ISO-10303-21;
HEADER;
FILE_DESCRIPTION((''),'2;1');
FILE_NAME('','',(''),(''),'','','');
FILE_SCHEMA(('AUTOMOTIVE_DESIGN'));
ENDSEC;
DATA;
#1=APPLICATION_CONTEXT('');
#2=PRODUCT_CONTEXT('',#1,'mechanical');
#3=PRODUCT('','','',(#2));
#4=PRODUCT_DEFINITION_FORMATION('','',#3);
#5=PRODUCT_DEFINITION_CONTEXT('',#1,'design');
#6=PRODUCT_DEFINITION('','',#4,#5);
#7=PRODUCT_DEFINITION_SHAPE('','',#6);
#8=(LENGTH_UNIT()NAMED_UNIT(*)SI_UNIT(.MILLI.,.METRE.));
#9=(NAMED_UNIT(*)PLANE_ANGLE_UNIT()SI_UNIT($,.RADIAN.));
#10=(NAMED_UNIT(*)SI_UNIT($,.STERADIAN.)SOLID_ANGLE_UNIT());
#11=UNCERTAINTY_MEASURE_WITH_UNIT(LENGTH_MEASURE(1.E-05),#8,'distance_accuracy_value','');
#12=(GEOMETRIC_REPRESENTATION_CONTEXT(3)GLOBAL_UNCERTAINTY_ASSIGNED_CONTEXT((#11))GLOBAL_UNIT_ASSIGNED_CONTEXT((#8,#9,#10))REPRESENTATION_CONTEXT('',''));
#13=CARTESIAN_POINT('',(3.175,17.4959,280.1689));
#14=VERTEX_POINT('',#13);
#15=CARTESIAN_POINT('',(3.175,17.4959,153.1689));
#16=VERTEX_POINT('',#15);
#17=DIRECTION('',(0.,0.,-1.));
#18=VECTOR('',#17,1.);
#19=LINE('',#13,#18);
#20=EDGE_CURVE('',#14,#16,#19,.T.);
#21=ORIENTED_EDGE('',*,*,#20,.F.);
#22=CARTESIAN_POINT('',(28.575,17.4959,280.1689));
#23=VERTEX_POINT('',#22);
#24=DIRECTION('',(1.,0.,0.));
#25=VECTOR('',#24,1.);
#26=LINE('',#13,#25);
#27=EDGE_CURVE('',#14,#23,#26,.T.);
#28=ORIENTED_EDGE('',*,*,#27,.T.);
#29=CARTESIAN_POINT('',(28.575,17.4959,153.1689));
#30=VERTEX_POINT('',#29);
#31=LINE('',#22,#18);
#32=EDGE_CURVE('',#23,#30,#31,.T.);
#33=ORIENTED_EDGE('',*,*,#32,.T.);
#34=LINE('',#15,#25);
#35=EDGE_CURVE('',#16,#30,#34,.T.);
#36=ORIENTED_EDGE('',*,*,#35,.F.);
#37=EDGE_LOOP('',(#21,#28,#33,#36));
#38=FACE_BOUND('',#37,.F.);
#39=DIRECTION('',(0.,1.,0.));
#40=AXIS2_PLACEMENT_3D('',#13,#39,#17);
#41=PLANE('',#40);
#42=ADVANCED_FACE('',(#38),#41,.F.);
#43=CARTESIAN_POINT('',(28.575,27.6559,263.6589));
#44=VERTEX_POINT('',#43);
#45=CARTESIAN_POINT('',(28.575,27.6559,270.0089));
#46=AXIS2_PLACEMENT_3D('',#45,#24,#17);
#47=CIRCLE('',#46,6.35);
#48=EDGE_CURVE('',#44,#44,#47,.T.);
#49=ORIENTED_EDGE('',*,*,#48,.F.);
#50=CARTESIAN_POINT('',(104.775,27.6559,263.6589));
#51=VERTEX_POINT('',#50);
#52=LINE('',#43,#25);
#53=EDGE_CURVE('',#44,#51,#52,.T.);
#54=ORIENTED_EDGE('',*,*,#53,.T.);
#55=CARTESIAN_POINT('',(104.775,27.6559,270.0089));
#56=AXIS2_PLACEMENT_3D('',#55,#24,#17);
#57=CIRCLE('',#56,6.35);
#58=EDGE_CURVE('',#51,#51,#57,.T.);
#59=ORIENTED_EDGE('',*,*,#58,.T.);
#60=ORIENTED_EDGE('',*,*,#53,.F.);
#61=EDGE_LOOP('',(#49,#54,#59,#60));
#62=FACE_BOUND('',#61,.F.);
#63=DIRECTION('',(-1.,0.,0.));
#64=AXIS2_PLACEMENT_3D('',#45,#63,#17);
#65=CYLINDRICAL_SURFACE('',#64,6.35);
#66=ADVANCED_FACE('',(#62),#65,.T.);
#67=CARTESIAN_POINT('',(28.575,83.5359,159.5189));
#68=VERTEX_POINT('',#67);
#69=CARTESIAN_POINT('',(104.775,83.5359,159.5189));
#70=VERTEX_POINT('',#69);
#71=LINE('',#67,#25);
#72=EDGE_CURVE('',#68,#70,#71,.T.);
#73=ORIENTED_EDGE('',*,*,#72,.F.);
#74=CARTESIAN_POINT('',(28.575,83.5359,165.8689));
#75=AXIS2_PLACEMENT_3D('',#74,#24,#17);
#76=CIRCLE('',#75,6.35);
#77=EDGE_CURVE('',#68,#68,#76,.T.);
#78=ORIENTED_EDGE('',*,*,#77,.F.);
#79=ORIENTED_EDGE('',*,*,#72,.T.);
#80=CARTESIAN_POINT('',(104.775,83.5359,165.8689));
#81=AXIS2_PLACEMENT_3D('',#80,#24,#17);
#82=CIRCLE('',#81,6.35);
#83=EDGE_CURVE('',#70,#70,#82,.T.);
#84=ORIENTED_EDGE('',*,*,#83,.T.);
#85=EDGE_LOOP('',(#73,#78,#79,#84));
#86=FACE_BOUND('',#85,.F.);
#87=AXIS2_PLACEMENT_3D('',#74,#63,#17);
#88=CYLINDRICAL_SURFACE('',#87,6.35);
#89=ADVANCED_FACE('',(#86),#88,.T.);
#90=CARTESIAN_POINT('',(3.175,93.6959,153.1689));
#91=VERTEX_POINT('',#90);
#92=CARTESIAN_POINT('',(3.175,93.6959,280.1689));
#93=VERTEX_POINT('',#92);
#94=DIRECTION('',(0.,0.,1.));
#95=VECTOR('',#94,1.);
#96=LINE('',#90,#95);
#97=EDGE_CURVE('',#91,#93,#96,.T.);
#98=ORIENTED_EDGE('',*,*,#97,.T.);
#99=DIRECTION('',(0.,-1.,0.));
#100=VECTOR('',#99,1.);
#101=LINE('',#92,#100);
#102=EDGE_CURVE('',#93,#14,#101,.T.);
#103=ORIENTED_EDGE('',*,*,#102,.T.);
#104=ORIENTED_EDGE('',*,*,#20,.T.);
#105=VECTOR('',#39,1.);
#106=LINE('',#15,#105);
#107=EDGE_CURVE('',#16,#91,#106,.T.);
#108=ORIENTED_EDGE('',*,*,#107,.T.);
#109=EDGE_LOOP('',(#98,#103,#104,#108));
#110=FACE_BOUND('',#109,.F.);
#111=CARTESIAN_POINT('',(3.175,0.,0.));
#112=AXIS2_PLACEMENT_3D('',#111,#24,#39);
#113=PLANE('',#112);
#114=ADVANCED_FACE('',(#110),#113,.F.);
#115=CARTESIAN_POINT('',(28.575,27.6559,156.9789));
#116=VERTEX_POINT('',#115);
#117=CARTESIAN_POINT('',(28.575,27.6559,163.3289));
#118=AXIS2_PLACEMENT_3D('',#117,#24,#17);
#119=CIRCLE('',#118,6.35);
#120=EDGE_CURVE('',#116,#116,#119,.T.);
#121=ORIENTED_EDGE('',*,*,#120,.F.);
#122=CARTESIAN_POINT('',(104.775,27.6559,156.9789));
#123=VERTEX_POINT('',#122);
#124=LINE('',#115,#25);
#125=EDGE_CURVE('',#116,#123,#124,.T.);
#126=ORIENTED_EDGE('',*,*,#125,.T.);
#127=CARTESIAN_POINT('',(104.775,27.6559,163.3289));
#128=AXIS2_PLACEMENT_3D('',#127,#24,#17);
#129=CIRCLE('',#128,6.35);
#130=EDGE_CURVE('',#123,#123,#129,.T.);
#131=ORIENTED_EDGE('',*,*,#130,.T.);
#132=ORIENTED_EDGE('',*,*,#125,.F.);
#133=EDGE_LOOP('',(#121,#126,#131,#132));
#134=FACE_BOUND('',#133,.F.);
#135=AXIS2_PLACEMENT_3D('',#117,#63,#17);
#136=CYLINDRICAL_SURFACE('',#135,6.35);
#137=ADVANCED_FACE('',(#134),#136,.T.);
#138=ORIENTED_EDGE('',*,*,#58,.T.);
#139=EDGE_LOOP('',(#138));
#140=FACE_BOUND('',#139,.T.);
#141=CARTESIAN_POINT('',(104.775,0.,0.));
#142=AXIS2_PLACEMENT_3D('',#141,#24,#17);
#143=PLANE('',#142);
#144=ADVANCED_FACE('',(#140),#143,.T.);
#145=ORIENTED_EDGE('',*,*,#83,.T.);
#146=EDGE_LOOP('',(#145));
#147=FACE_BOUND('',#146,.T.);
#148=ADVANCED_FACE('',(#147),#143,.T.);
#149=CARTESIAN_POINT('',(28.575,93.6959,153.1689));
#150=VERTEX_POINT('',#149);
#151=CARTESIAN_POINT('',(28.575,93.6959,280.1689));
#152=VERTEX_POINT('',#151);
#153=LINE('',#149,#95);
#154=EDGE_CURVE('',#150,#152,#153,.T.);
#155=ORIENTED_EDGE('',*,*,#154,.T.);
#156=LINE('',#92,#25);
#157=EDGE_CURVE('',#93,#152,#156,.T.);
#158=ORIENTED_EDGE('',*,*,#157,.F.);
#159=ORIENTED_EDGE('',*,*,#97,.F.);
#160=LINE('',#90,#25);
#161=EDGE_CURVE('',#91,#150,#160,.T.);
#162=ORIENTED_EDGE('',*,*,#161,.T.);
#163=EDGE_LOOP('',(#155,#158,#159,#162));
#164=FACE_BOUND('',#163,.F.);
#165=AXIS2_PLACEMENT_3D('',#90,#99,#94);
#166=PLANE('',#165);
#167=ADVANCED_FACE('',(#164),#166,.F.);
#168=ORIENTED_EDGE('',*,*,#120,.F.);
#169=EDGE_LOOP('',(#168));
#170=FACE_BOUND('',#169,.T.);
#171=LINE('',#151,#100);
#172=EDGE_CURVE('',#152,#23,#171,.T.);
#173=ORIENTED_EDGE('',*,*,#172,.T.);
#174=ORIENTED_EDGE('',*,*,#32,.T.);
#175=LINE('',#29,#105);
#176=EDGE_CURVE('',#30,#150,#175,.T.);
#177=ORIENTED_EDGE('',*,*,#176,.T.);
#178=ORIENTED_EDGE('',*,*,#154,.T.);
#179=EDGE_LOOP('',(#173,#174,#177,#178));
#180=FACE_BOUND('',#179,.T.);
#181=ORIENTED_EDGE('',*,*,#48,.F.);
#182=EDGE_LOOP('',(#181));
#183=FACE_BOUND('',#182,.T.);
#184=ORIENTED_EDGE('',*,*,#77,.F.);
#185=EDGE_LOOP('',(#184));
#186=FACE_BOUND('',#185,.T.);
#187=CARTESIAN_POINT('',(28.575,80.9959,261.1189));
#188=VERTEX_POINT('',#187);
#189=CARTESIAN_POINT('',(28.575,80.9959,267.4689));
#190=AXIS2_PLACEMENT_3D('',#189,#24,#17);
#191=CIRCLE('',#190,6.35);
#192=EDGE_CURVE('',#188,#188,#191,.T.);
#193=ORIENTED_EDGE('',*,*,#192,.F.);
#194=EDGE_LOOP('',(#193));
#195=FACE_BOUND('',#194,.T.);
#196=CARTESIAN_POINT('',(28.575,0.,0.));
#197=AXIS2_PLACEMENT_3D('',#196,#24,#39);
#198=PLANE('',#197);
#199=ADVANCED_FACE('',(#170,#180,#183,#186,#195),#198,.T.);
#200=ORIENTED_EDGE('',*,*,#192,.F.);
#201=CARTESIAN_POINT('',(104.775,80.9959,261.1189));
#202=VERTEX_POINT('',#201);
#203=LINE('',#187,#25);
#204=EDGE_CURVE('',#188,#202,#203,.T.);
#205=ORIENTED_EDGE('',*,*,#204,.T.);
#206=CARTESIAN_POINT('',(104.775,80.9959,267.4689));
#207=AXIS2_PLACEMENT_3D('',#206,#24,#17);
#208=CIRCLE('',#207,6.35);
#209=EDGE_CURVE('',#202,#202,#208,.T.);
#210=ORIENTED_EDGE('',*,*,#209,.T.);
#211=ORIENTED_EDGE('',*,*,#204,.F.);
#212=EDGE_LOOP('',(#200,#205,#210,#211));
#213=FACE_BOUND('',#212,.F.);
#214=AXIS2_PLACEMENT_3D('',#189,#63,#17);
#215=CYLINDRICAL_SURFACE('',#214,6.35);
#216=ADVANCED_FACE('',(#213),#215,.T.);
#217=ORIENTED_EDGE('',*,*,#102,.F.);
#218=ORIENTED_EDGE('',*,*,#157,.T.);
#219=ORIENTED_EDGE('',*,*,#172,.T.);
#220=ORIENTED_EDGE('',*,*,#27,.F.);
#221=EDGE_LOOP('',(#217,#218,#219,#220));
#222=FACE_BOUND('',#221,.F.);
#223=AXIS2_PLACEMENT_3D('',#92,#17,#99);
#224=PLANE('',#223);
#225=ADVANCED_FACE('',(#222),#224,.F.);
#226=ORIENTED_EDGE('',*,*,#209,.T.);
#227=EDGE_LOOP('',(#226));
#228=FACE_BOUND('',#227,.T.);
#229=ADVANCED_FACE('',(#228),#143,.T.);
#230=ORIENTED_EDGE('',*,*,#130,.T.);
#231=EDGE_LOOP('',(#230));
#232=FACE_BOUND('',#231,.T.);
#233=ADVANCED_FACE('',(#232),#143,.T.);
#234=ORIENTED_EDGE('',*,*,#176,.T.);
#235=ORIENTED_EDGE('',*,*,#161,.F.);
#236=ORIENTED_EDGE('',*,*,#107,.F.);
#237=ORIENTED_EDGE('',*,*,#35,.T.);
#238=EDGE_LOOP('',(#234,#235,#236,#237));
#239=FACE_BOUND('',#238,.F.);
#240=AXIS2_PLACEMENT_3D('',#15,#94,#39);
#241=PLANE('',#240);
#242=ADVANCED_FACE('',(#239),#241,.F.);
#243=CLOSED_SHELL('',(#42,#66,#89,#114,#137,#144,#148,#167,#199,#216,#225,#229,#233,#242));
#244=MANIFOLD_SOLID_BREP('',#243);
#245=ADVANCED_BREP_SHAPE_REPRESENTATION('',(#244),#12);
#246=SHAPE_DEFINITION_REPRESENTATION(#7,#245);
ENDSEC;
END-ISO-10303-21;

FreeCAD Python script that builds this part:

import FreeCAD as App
import Part
import Sketcher
Q = App.Units.Quantity


def add_polygon(sketch, points):
    """Adds a closed chain of lines whose ends are joined by coincident constraints."""
    first, n = sketch.GeometryCount, len(points)
    for a, b in zip(points, points[1:] + points[:1]):
        sketch.addGeometry(Part.LineSegment(App.Vector(*a, 0), App.Vector(*b, 0)), False)
    for i in range(n):
        sketch.addConstraint(Sketcher.Constraint("Coincident", first + i, 2, first + (i + 1) % n, 1))

doc = App.newDocument("Part")
body = doc.addObject("PartDesign::Body", "Body")

sketch1 = body.newObject("Sketcher::SketchObject", "Sketch")
sketch1.AttachmentSupport = (doc.getObject("YZ_Plane"), [""])
sketch1.MapMode = "FlatFace"
sketch1.AttachmentOffset = App.Placement(App.Vector(0, 0, 0.125 * 25.4), App.Rotation())
add_polygon(sketch1, [(94, 153), (94, 280), (17, 280), (17, 153)])
sketch1.addConstraint([
    Sketcher.Constraint("Vertical", 0),
    Sketcher.Constraint("Horizontal", 1),
    Sketcher.Constraint("Vertical", 2),
    Sketcher.Constraint("Horizontal", 3),
    Sketcher.Constraint("DistanceX", 1, 2, 1, 1, Q("3 in")),
    Sketcher.Constraint("DistanceY", 0, 1, 0, 2, Q("5 in")),
    Sketcher.Constraint("DistanceX", -1, 1, 0, 2, 93.696),
    Sketcher.Constraint("DistanceY", -1, 1, 0, 2, 280.169),
])
pad1 = body.newObject("PartDesign::Pad", "Pad")
pad1.Profile = sketch1
pad1.Length = Q("1 in")

sketch2 = body.newObject("Sketcher::SketchObject", "Sketch001")
sketch2.AttachmentSupport = (doc.getObject("YZ_Plane"), [""])
sketch2.MapMode = "FlatFace"
sketch2.AttachmentOffset = App.Placement(App.Vector(0, 0, 1.125 * 25.4), App.Rotation())
sketch2.addGeometry([
    Part.Circle(App.Vector(28, 270, 0), App.Vector(0, 0, 1), 6),
    Part.Circle(App.Vector(84, 166, 0), App.Vector(0, 0, 1), 6),
    Part.Circle(App.Vector(81, 267, 0), App.Vector(0, 0, 1), 6),
    Part.Circle(App.Vector(28, 163, 0), App.Vector(0, 0, 1), 6),
], False)
sketch2.addConstraint([
    Sketcher.Constraint("Equal", 0, 1),
    Sketcher.Constraint("Equal", 1, 2),
    Sketcher.Constraint("Equal", 2, 3),
    Sketcher.Constraint("Vertical", 0, 3, 3, 3),
    Sketcher.Constraint("Diameter", 0, Q("0.5 in")),
    Sketcher.Constraint("DistanceY", 1, 3, 2, 3, Q("4 in")),
    Sketcher.Constraint("DistanceX", 0, 3, 1, 3, Q("2.2 in")),
    Sketcher.Constraint("DistanceY", 1, 3, 0, 3, Q("4.1 in")),
    Sketcher.Constraint("DistanceX", 0, 3, 2, 3, Q("2.1 in")),
    Sketcher.Constraint("DistanceY", 3, 3, 1, 3, Q("0.1 in")),
    Sketcher.Constraint("DistanceX", -1, 1, 0, 3, 27.656),
    Sketcher.Constraint("DistanceY", -1, 1, 0, 3, 270.009),
])
pad2 = body.newObject("PartDesign::Pad", "Pad001")
pad2.Profile = sketch2
pad2.Length = Q("3 in")

doc.recompute()
